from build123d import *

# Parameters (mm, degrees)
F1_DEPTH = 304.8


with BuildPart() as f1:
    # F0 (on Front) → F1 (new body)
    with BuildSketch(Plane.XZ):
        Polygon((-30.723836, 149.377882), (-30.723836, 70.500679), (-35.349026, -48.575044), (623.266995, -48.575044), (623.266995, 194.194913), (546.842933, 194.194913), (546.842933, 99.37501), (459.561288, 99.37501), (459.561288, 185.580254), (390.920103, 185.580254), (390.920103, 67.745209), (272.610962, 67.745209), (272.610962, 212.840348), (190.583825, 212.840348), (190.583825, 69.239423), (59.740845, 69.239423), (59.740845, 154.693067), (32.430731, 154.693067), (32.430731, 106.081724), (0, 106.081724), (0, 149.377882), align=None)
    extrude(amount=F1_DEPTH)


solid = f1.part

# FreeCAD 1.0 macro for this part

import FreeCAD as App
import Part
import Sketcher
Q = App.Units.Quantity


def add_polygon(sketch, points):
    """Adds a closed chain of lines whose ends are joined by coincident constraints."""
    first, n = sketch.GeometryCount, len(points)
    for a, b in zip(points, points[1:] + points[:1]):
        sketch.addGeometry(Part.LineSegment(App.Vector(*a, 0), App.Vector(*b, 0)), False)
    for i in range(n):
        sketch.addConstraint(Sketcher.Constraint("Coincident", first + i, 2, first + (i + 1) % n, 1))

doc = App.newDocument("Part")
body = doc.addObject("PartDesign::Body", "Body")

sketch1 = doc.addObject("Sketcher::SketchObject", "Sketch")
body.addObject(sketch1)
sketch1.AttachmentSupport = (doc.XZ_Plane, [""])
sketch1.MapMode = "FlatFace"
add_polygon(sketch1, [(-31, 149), (-31, 71), (-35, -49), (623, -49), (623, 194), (547, 194), (547, 99), (460, 99), (460, 186), (391, 186), (391, 68), (273, 68), (273, 213), (191, 213), (191, 69), (60, 69), (60, 155), (32, 155), (32, 106), (0, 106), (0, 149)])
sketch1.addConstraint([
    Sketcher.Constraint("Vertical", 0),
    Sketcher.Constraint("Horizontal", 2),
    Sketcher.Constraint("Vertical", 3),
    Sketcher.Constraint("Horizontal", 4),
    Sketcher.Constraint("Vertical", 5),
    Sketcher.Constraint("Horizontal", 6),
    Sketcher.Constraint("Vertical", 7),
    Sketcher.Constraint("Horizontal", 8),
    Sketcher.Constraint("Vertical", 9),
    Sketcher.Constraint("Horizontal", 10),
    Sketcher.Constraint("Vertical", 11),
    Sketcher.Constraint("Horizontal", 12),
    Sketcher.Constraint("Vertical", 13),
    Sketcher.Constraint("Horizontal", 14),
    Sketcher.Constraint("Vertical", 15),
    Sketcher.Constraint("Horizontal", 16),
    Sketcher.Constraint("Vertical", 17),
    Sketcher.Constraint("Horizontal", 18),
    Sketcher.Constraint("Vertical", 19),
    Sketcher.Constraint("Horizontal", 20),
    Sketcher.Constraint("PointOnObject", 18, 2, -2),
    Sketcher.Constraint("DistanceX", 20, 2, 20, 1, Q("1.2095998 in")),
    Sketcher.Constraint("DistanceX", -1, 1, 12, 2, Q("7.5033002 in")),
    Sketcher.Constraint("DistanceX", 2, 1, 2, 2, 658.616021),
    Sketcher.Constraint("DistanceX", 4, 2, 4, 1, 76.424062),
    Sketcher.Constraint("DistanceX", 10, 2, 10, 1, 118.309141),
    Sketcher.Constraint("DistanceX", 14, 2, 14, 1, 130.84298),
    Sketcher.Constraint("DistanceX", 18, 2, 18, 1, 32.430731),
    Sketcher.Constraint("DistanceY", 11, 1, 11, 2, 145.095139),
    Sketcher.Constraint("DistanceY", 19, 1, 19, 2, 43.296158),
    Sketcher.Constraint("DistanceY", 9, 2, 6, 2, 31.629801),
    Sketcher.Constraint("DistanceY", 14, 2, 17, 2, 36.842301),
    Sketcher.Constraint("DistanceX", 6, 2, 6, 1, 87.281645),
    Sketcher.Constraint("DistanceX", 8, 2, 8, 1, 68.641185),
    Sketcher.Constraint("DistanceX", 12, 2, 12, 1, 82.027137),
    Sketcher.Constraint("DistanceY", 0, 2, 0, 1, 78.877203),
    Sketcher.Constraint("DistanceY", 3, 1, 3, 2, 242.769957),
    Sketcher.Constraint("DistanceY", 5, 2, 5, 1, 94.819903),
    Sketcher.Constraint("DistanceY", 7, 1, 7, 2, 86.205244),
    Sketcher.Constraint("DistanceY", 13, 2, 13, 1, 143.600925),
    Sketcher.Constraint("DistanceY", 15, 1, 15, 2, 85.453644),
    Sketcher.Constraint("DistanceY", -1, 1, 0, 2, 70.500679),
])
pad1 = doc.addObject("PartDesign::Pad", "Pad")
body.addObject(pad1)
pad1.Profile = sketch1
pad1.Length = Q("12 in")

doc.recompute()
